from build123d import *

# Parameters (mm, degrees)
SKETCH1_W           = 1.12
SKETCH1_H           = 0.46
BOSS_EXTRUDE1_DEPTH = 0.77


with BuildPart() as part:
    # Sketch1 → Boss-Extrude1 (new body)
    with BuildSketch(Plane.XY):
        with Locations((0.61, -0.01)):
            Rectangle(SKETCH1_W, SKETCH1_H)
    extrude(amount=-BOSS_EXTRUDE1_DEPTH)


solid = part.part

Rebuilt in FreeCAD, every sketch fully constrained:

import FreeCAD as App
import Part
import Sketcher
from FreeCAD import Vector

doc = App.newDocument("Part")
params = doc.addObject("Spreadsheet::Sheet", "Params")
for row, (alias, value) in enumerate([
    ("sketch1_width", "1.12 mm"),
    ("sketch1_height", "0.46 mm"),
    ("pad1_length", "0.77 mm"),
], start=1):
    params.set(f"A{row}", alias)
    params.set(f"B{row}", "=" + value)
    params.setAlias(f"B{row}", alias)

body = doc.addObject("PartDesign::Body", "Body")

sketch1 = body.newObject("Sketcher::SketchObject", "Sketch")
sketch1.AttachmentSupport = (doc.getObject("XY_Plane"), [""])
sketch1.MapMode = "FlatFace"
sketch1.addGeometry([
    Part.LineSegment(Vector(0.05, 0.22, 0), Vector(0.05, -0.24, 0)),
    Part.LineSegment(Vector(0.05, -0.24, 0), Vector(1.17, -0.24, 0)),
    Part.LineSegment(Vector(1.17, -0.24, 0), Vector(1.17, 0.22, 0)),
    Part.LineSegment(Vector(1.17, 0.22, 0), Vector(0.05, 0.22, 0)),
], False)
sketch1.addConstraint([
    Sketcher.Constraint("Coincident", 0, 2, 1, 1),
    Sketcher.Constraint("Coincident", 1, 2, 2, 1),
    Sketcher.Constraint("Coincident", 2, 2, 3, 1),
    Sketcher.Constraint("Coincident", 3, 2, 0, 1),
    Sketcher.Constraint("Vertical", 0),
    Sketcher.Constraint("Horizontal", 1),
    Sketcher.Constraint("Vertical", 2),
    Sketcher.Constraint("Horizontal", 3),
    Sketcher.Constraint("DistanceX", 1, 1, 1, 2, 1.12),
    Sketcher.Constraint("DistanceY", 0, 2, 0, 1, 0.46),
    Sketcher.Constraint("DistanceX", -1, 1, 0, 2, 0.05),
    Sketcher.Constraint("DistanceY", 0, 2, -1, 1, 0.24),
])
sketch1.setExpression("Constraints[8]", "Params.sketch1_width")
sketch1.setExpression("Constraints[9]", "Params.sketch1_height")
pad1 = body.newObject("PartDesign::Pad", "Pad")
pad1.Profile = sketch1
pad1.setExpression("Length", "Params.pad1_length")
pad1.Reversed = True

doc.recompute()
